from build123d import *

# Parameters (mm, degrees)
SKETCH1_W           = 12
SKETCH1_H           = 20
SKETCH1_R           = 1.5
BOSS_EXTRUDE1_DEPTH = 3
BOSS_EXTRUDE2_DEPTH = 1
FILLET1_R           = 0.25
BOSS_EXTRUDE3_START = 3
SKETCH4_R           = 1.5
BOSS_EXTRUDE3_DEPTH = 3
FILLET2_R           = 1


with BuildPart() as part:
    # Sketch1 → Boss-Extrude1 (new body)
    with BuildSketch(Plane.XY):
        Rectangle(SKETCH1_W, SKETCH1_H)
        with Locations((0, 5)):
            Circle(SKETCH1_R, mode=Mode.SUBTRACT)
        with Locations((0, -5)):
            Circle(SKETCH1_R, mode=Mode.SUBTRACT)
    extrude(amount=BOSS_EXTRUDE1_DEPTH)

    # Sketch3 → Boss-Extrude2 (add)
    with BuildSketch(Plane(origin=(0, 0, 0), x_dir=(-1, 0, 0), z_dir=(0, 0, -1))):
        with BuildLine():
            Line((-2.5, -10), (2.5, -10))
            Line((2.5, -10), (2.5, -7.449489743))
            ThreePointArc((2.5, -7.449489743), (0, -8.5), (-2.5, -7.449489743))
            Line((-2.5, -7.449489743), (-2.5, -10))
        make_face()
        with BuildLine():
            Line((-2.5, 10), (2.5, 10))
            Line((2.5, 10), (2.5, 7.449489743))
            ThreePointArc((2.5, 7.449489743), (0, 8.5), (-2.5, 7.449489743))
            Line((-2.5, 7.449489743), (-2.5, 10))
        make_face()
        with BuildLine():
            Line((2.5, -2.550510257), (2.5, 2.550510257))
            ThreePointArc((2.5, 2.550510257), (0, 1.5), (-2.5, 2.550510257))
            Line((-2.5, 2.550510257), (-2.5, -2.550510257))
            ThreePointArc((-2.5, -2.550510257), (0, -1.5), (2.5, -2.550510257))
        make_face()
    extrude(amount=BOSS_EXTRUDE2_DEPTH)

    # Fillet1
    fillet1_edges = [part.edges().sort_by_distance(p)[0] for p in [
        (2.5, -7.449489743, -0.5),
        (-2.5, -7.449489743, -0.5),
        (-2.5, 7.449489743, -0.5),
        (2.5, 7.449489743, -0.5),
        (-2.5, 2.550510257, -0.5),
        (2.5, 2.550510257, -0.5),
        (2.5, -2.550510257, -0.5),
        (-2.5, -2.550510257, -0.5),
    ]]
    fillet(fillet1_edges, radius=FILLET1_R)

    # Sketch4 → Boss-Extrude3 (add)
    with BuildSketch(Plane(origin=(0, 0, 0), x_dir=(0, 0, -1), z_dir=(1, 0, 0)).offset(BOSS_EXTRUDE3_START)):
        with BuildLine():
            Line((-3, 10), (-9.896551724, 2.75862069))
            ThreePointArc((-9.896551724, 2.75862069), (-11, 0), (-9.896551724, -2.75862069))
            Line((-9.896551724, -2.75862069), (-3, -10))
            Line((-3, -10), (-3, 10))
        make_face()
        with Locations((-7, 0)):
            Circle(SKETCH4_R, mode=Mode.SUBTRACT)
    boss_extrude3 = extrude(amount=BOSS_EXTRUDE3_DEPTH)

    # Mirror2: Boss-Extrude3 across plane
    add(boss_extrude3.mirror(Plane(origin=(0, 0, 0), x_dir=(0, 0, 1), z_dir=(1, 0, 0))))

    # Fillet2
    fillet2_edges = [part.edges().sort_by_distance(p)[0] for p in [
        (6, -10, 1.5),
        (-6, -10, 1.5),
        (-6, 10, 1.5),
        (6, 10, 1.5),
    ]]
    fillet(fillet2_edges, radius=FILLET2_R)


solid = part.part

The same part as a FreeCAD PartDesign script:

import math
import FreeCAD as App
import Part
import Sketcher
from FreeCAD import Vector


def edges_at(feature, points):
    """Names of the edges that pass closest to the given points."""
    edges = feature.Shape.Edges
    near = lambda p: min(range(len(edges)), key=lambda i: edges[i].distToShape(Part.Vertex(*p))[0])
    return sorted({f"Edge{near(p) + 1}" for p in points})


def add_polygon(sketch, points):
    """Adds a closed chain of lines whose ends are joined by coincident constraints."""
    first, n = sketch.GeometryCount, len(points)
    for a, b in zip(points, points[1:] + points[:1]):
        sketch.addGeometry(Part.LineSegment(App.Vector(*a, 0), App.Vector(*b, 0)), False)
    for i in range(n):
        sketch.addConstraint(Sketcher.Constraint("Coincident", first + i, 2, first + (i + 1) % n, 1))

doc = App.newDocument("Part")
body = doc.addObject("PartDesign::Body", "Body")

# Sketch on XY plane
sketch1 = body.newObject("Sketcher::SketchObject", "Sketch")
sketch1.AttachmentSupport = (doc.getObject("XY_Plane"), [""])
sketch1.MapMode = "FlatFace"
add_polygon(sketch1, [(-6, 10), (-6, -10), (6, -10), (6, 10)])  # lines 0-3
sketch1.addGeometry(Part.Circle(Vector(0, -5, 0), Vector(0, 0, 1), 1.5), False)  # 4
sketch1.addGeometry(Part.Circle(Vector(0, 5, 0), Vector(0, 0, 1), 1.5), False)  # 5
sketch1.addConstraint([
    Sketcher.Constraint("Vertical", 0),
    Sketcher.Constraint("Horizontal", 1),
    Sketcher.Constraint("Vertical", 2),
    Sketcher.Constraint("Horizontal", 3),
    Sketcher.Constraint("Equal", 4, 5),
    Sketcher.Constraint("Symmetric", 4, 3, 5, 3, -1, 1),
    Sketcher.Constraint("Symmetric", 0, 2, 2, 2, -1, 1),
    Sketcher.Constraint("PointOnObject", 4, 3, -2),
    Sketcher.Constraint("Diameter", 4, 3.0),
    Sketcher.Constraint("DistanceX", 1, 1, 1, 2, 12.0),
    Sketcher.Constraint("DistanceY", 0, 2, 0, 1, 20.0),
    Sketcher.Constraint("DistanceY", 4, 3, -1, 1, 5.0),
])
pad1 = body.newObject("PartDesign::Pad", "Pad")
pad1.Profile = sketch1
pad1.Length = 3

# Sketch on XY plane
sketch2 = body.newObject("Sketcher::SketchObject", "Sketch001")
sketch2.AttachmentSupport = (doc.getObject("XY_Plane"), [""])
sketch2.MapMode = "FlatFace"
sketch2.addGeometry([
    Part.LineSegment(Vector(2.5, -10, 0), Vector(-2.5, -10, 0)),  # 0
    Part.LineSegment(Vector(-2.5, -10, 0), Vector(-2.5, -7.4, 0)),  # 1
    Part.ArcOfCircle(Part.Circle(Vector(0, -5, 0), Vector(0, 0, 1), 3.5), math.radians(-136), math.radians(-44)),  # 2
    Part.LineSegment(Vector(2.5, -7.4, 0), Vector(2.5, -10, 0)),  # 3
    Part.LineSegment(Vector(-2.5, 10, 0), Vector(2.5, 10, 0)),  # 4
    Part.LineSegment(Vector(2.5, 10, 0), Vector(2.5, 7.4, 0)),  # 5
    Part.ArcOfCircle(Part.Circle(Vector(0, 5, 0), Vector(0, 0, 1), 3.5), math.radians(44), math.radians(136)),  # 6
    Part.LineSegment(Vector(-2.5, 7.4, 0), Vector(-2.5, 10, 0)),  # 7
    Part.LineSegment(Vector(-2.5, -2.6, 0), Vector(-2.5, 2.6, 0)),  # 8
    Part.ArcOfCircle(Part.Circle(Vector(0, 5, 0), Vector(0, 0, 1), 3.5), math.radians(-136), math.radians(-44)),  # 9
    Part.LineSegment(Vector(2.5, 2.6, 0), Vector(2.5, -2.6, 0)),  # 10
    Part.ArcOfCircle(Part.Circle(Vector(0, -5, 0), Vector(0, 0, 1), 3.5), math.radians(44), math.radians(136)),  # 11
], False)
sketch2.addConstraint([
    Sketcher.Constraint("Coincident", 0, 2, 1, 1),
    Sketcher.Constraint("Coincident", 1, 2, 2, 1),
    Sketcher.Constraint("Coincident", 2, 2, 3, 1),
    Sketcher.Constraint("Coincident", 3, 2, 0, 1),
    Sketcher.Constraint("Coincident", 4, 2, 5, 1),
    Sketcher.Constraint("Coincident", 5, 2, 6, 1),
    Sketcher.Constraint("Coincident", 6, 2, 7, 1),
    Sketcher.Constraint("Coincident", 7, 2, 4, 1),
    Sketcher.Constraint("Coincident", 8, 2, 9, 1),
    Sketcher.Constraint("Coincident", 9, 2, 10, 1),
    Sketcher.Constraint("Coincident", 10, 2, 11, 1),
    Sketcher.Constraint("Coincident", 11, 2, 8, 1),
    Sketcher.Constraint("Horizontal", 0),
    Sketcher.Constraint("Vertical", 1),
    Sketcher.Constraint("Vertical", 3),
    Sketcher.Constraint("Horizontal", 4),
    Sketcher.Constraint("Vertical", 5),
    Sketcher.Constraint("Vertical", 7),
    Sketcher.Constraint("Vertical", 8),
    Sketcher.Constraint("Vertical", 10),
    Sketcher.Constraint("Coincident", 9, 3, 6, 3),
    Sketcher.Constraint("Coincident", 11, 3, 2, 3),
    Sketcher.Constraint("Equal", 2, 6),
    Sketcher.Constraint("Equal", 6, 9),
    Sketcher.Constraint("Equal", 9, 11),
    Sketcher.Constraint("Symmetric", 2, 3, 6, 3, -1, 1),
    Sketcher.Constraint("Symmetric", 0, 2, 4, 2, -1, 1),
    Sketcher.Constraint("Symmetric", 1, 2, 2, 2, -2),
    Sketcher.Constraint("Horizontal", 5, 2, 6, 2),
    Sketcher.Constraint("Horizontal", 8, 2, 9, 2),
    Sketcher.Constraint("Vertical", 7, 2, 8, 2),
    Sketcher.Constraint("Radius", 2, 3.5),
    Sketcher.Constraint("DistanceX", 0, 2, 0, 1, 5.0),
    Sketcher.Constraint("DistanceY", 2, 3, -1, 1, 5.0),
    Sketcher.Constraint("DistanceY", 0, 2, -1, 1, 10.0),
])
pad2 = body.newObject("PartDesign::Pad", "Pad001")
pad2.Profile = sketch2
pad2.Length = 1
pad2.Reversed = True
doc.recompute()

fillet = body.newObject("PartDesign::Fillet", "Fillet")
fillet.Base = (pad2, edges_at(pad2, [
    (2.5, -7.449, -0.5),
    (-2.5, -7.449, -0.5),
    (-2.5, 7.449, -0.5),
    (2.5, 7.449, -0.5),
    (-2.5, 2.551, -0.5),
    (2.5, 2.551, -0.5),
    (2.5, -2.551, -0.5),
    (-2.5, -2.551, -0.5),
]))
fillet.Radius = 0.25

# Sketch on YZ plane
sketch3 = body.newObject("Sketcher::SketchObject", "Sketch002")
sketch3.AttachmentSupport = (doc.getObject("YZ_Plane"), [""])
sketch3.MapMode = "FlatFace"
sketch3.AttachmentOffset = App.Placement(Vector(0, 0, 3), App.Rotation())
sketch3.addGeometry([
    Part.LineSegment(Vector(10, 3, 0), Vector(2.8, 9.9, 0)),  # 0
    Part.ArcOfCircle(Part.Circle(Vector(0, 7, 0), Vector(0, 0, 1), 4), math.radians(46), math.radians(134)),  # 1
    Part.LineSegment(Vector(-2.8, 9.9, 0), Vector(-10, 3, 0)),  # 2
    Part.LineSegment(Vector(-10, 3, 0), Vector(10, 3, 0)),  # 3
    Part.Circle(Vector(0, 7, 0), Vector(0, 0, 1), 1.5),  # 4
], False)
sketch3.addConstraint([
    Sketcher.Constraint("Tangent", 0, 2, 1, 1),
    Sketcher.Constraint("Tangent", 1, 2, 2, 1),
    Sketcher.Constraint("Coincident", 2, 2, 3, 1),
    Sketcher.Constraint("Coincident", 3, 2, 0, 1),
    Sketcher.Constraint("Horizontal", 3),
    Sketcher.Constraint("Coincident", 4, 3, 1, 3),
    Sketcher.Constraint("Symmetric", 0, 2, 1, 2, -2),
    Sketcher.Constraint("Diameter", 4, 3.0),
    Sketcher.Constraint("Radius", 1, 4.0),
    Sketcher.Constraint("DistanceX", 3, 1, 3, 2, 20.0),
    Sketcher.Constraint("Distance", 0, 10.0),
    Sketcher.Constraint("DistanceY", -1, 1, 1, 3, 7.0),
])
pad3 = body.newObject("PartDesign::Pad", "Pad002")
pad3.Profile = sketch3
pad3.Length = 3
doc.recompute()

mirrored = body.newObject("PartDesign::Mirrored", "Mirrored")
mirrored.Originals = [pad3]
mirrored.MirrorPlane = (doc.getObject("YZ_Plane"), [""])
body.Tip = mirrored
doc.recompute()

fillet2 = body.newObject("PartDesign::Fillet", "Fillet001")
fillet2.Base = (mirrored, edges_at(mirrored, [
    (6, -10, 1.5),
    (-6, -10, 1.5),
    (-6, 10, 1.5),
    (6, 10, 1.5),
]))
fillet2.Radius = 1

doc.recompute()
